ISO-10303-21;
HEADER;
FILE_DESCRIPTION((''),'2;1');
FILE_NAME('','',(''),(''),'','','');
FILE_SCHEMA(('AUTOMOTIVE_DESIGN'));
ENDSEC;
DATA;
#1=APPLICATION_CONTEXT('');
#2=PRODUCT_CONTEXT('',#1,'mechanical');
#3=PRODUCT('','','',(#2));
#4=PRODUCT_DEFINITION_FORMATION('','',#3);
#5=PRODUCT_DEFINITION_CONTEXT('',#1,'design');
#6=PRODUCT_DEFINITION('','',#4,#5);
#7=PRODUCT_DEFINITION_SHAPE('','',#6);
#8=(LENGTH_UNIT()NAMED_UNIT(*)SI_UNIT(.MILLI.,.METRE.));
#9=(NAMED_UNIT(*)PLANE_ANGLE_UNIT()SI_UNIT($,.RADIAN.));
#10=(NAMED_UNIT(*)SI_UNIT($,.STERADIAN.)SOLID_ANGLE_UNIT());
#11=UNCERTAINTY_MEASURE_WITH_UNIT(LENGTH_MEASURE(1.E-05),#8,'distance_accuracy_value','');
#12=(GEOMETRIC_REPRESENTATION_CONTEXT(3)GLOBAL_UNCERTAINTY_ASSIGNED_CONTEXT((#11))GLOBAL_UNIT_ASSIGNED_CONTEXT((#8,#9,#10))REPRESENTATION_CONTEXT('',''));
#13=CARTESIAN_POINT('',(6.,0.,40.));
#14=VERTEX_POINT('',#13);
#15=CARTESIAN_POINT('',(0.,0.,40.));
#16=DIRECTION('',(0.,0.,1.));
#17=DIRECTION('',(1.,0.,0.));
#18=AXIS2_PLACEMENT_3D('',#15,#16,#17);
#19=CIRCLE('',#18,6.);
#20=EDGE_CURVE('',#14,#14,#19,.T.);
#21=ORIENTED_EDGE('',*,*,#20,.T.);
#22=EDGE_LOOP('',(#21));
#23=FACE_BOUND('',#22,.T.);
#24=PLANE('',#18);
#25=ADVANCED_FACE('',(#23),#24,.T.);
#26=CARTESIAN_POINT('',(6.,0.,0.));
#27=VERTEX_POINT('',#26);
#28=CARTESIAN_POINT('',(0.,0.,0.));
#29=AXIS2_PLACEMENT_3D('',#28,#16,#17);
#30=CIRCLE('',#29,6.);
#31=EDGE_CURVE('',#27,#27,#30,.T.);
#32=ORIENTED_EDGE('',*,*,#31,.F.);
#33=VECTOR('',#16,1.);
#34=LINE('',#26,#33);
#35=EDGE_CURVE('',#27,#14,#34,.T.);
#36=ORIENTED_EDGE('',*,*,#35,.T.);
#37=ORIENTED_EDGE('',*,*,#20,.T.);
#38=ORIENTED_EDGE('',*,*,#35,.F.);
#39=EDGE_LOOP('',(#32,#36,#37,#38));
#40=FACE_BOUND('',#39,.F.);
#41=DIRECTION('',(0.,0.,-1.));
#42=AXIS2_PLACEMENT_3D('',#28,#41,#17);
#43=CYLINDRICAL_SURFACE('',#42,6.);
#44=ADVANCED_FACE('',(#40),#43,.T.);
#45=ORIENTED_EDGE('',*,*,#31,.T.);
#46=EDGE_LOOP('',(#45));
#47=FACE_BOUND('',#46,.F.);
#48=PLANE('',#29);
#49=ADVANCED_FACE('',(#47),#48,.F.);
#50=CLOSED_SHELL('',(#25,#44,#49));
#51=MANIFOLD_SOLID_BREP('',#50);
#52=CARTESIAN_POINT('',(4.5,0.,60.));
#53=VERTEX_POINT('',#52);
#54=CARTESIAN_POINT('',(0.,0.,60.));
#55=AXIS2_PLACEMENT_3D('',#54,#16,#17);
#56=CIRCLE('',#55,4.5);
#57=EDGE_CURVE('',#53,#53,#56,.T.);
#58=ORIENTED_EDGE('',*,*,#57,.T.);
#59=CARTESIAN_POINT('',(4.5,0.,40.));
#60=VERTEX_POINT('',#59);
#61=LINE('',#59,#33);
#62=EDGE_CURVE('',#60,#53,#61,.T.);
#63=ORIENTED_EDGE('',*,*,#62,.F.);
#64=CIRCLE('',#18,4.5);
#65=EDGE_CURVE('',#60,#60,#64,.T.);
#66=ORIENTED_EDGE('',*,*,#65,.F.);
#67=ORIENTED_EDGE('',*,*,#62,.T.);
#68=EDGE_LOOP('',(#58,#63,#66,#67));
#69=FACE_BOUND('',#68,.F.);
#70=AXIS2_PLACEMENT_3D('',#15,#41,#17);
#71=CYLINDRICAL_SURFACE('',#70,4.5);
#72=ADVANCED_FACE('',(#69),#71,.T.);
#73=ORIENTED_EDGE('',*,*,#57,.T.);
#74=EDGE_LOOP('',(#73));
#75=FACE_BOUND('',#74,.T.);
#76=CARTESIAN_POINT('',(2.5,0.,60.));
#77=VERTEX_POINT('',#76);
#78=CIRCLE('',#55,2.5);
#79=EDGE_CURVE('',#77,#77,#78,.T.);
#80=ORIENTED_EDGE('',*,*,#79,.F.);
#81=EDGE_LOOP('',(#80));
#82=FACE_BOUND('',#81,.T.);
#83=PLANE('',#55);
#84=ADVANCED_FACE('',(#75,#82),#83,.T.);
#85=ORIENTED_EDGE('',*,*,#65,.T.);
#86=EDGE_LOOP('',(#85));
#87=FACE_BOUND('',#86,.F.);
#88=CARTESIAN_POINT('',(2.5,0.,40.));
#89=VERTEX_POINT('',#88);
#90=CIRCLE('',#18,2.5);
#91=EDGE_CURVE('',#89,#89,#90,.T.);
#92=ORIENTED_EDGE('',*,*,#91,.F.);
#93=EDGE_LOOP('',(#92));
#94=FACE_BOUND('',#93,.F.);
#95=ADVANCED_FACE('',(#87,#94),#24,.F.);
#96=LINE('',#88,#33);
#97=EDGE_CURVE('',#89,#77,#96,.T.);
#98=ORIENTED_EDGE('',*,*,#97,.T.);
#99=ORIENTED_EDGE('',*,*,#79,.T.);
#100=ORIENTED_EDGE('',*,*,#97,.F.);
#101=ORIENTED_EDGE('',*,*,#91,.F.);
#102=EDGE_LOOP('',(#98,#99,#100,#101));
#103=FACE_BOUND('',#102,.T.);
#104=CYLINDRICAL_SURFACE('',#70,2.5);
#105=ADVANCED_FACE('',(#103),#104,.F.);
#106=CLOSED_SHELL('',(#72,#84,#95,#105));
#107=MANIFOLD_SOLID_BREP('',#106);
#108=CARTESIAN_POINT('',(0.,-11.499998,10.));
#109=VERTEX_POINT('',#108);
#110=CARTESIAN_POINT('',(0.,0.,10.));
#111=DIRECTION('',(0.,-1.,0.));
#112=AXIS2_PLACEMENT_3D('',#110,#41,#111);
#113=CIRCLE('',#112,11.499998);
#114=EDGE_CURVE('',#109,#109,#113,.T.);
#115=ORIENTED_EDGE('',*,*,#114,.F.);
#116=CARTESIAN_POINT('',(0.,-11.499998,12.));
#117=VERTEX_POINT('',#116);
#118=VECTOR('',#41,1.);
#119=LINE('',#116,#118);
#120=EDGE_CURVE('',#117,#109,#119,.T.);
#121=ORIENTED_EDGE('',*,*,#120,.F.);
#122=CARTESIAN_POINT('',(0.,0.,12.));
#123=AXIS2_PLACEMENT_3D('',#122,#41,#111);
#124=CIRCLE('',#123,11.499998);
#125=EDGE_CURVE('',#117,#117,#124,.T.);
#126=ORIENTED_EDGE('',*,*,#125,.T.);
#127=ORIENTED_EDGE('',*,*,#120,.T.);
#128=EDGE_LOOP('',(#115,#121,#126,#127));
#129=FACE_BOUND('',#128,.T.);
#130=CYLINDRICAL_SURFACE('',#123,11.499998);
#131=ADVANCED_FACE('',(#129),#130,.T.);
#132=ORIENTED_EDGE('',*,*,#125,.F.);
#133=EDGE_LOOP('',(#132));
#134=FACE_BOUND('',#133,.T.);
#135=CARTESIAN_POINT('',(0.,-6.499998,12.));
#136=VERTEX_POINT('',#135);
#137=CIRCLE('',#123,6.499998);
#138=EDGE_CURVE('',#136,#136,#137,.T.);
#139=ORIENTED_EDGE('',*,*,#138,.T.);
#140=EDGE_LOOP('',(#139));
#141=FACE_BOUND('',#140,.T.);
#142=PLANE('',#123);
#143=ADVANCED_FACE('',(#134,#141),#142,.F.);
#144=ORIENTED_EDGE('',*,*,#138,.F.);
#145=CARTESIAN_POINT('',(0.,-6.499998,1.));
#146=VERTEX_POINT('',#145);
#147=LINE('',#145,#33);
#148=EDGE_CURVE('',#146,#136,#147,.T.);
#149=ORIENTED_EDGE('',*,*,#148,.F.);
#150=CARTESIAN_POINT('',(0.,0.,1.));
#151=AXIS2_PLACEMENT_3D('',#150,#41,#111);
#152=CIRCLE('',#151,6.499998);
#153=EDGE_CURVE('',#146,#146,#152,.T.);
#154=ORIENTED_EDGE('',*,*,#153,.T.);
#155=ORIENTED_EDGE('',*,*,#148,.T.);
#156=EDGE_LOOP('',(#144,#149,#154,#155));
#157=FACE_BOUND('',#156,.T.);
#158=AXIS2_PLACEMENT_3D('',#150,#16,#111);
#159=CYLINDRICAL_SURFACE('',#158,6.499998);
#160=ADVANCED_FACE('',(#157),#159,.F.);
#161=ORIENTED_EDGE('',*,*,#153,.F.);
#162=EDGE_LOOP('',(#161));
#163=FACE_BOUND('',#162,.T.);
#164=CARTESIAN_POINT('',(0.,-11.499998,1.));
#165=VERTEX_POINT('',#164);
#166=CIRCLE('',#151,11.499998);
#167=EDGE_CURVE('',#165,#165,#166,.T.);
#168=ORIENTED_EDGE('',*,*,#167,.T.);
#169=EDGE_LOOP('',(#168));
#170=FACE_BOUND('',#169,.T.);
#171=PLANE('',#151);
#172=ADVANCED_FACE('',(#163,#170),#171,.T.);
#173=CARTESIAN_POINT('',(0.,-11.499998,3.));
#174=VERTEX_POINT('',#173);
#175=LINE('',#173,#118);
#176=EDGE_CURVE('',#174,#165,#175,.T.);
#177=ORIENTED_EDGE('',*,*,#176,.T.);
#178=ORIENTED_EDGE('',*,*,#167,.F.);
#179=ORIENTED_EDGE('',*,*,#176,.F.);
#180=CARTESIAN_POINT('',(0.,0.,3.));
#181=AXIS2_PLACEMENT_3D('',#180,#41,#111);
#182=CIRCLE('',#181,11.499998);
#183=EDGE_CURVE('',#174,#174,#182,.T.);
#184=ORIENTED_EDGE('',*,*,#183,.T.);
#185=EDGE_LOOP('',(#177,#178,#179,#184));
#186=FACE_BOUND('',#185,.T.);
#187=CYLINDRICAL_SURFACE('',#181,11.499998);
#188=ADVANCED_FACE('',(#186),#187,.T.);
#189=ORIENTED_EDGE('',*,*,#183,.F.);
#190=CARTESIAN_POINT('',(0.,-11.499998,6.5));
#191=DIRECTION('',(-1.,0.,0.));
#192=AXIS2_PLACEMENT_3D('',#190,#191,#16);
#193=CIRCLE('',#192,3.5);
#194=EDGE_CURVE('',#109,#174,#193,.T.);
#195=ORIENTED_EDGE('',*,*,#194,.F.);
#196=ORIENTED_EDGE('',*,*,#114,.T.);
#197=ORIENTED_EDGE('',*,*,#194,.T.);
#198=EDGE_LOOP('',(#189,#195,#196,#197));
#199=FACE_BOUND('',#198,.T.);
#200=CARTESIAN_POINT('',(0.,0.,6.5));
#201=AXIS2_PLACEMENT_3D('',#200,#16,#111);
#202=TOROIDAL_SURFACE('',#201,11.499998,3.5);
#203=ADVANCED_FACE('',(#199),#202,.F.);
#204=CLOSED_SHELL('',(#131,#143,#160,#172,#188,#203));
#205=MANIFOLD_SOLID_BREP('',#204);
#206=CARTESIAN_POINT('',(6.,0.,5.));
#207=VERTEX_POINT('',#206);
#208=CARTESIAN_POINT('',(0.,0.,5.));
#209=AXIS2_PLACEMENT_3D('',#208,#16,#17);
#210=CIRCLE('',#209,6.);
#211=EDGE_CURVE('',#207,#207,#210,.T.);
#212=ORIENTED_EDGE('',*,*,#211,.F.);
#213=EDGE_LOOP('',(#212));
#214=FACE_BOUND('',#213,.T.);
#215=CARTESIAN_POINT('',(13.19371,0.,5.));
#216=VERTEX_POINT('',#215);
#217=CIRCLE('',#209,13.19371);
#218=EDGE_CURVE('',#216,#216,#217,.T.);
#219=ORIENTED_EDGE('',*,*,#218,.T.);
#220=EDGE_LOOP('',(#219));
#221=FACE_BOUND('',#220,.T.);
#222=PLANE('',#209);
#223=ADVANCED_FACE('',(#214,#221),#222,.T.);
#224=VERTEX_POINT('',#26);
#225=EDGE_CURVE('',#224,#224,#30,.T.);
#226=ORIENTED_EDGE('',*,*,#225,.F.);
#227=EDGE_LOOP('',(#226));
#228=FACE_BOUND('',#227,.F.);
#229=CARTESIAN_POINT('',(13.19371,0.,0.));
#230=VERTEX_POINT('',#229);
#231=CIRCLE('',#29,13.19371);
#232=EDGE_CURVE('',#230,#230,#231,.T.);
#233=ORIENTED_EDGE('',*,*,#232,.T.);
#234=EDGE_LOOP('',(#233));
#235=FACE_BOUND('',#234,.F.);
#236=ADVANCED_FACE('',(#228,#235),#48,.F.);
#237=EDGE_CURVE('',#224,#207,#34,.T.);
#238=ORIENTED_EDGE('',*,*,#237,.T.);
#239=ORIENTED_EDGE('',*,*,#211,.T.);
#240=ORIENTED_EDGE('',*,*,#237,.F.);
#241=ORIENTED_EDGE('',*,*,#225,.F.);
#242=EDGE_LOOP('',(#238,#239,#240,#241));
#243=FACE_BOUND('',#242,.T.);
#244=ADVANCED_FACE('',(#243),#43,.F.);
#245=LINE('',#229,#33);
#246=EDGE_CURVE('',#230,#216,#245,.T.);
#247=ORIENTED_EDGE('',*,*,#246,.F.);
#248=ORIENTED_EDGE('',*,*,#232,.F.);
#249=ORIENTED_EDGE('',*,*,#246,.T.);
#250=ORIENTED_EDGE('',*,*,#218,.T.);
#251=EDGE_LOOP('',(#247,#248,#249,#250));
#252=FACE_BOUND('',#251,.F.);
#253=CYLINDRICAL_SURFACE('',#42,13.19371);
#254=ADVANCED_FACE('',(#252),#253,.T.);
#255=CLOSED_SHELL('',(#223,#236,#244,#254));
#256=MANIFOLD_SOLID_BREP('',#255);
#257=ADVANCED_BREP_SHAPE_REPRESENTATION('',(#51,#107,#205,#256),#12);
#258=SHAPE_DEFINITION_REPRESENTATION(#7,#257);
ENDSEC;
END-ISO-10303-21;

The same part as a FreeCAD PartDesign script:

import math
import FreeCAD as App
import Part
import Sketcher
Q = App.Units.Quantity

doc = App.newDocument("Part")
params = doc.addObject("Spreadsheet::Sheet", "Params")
for row, (alias, value) in enumerate([
    ("sketch1_diameter", "12 mm"),
    ("pad1_length", "40 mm"),
    ("sketch2_diameter", "9 mm"),
    ("sketch2_diameter2", "5 mm"),
    ("pad2_length", "20 mm"),
    ("sketch3_radius", "3.5 mm"),
    ("sketch3_width", "5 mm"),
    ("sketch3_height", "11 mm"),
    ("revolution_angle", "360 deg"),
    ("sketch4_diameter", "12 mm"),
    ("pad3_length", "5 mm"),
], start=1):
    params.set(f"A{row}", alias)
    params.set(f"B{row}", "=" + value)
    params.setAlias(f"B{row}", alias)

body = doc.addObject("PartDesign::Body", "Body")

sketch1 = body.newObject("Sketcher::SketchObject", "Sketch")
sketch1.AttachmentSupport = (doc.getObject("XY_Plane"), [""])
sketch1.MapMode = "FlatFace"
sketch1.addGeometry(Part.Circle(App.Vector(0, 0, 0), App.Vector(0, 0, 1), 6), False)
sketch1.addConstraint([
    Sketcher.Constraint("Coincident", 0, 3, -1, 1),
    Sketcher.Constraint("Diameter", 0, Q("12 mm")),
])
sketch1.setExpression("Constraints[1]", "Params.sketch1_diameter")
pad1 = body.newObject("PartDesign::Pad", "Pad")
pad1.Profile = sketch1
pad1.setExpression("Length", "Params.pad1_length")
body2 = doc.addObject("PartDesign::Body", "Body001")

sketch2 = body2.newObject("Sketcher::SketchObject", "Sketch001")
sketch2.AttachmentSupport = (doc.getObject("XY_Plane001"), [""])
sketch2.MapMode = "FlatFace"
sketch2.AttachmentOffset = App.Placement(App.Vector(0, 0, 40), App.Rotation())
sketch2.addGeometry([
    Part.Circle(App.Vector(0, 0, 0), App.Vector(0, 0, 1), 4.5),
    Part.Circle(App.Vector(0, 0, 0), App.Vector(0, 0, 1), 2.5),
], False)
sketch2.addConstraint([
    Sketcher.Constraint("Coincident", 0, 3, -1, 1),
    Sketcher.Constraint("Coincident", 1, 3, -1, 1),
    Sketcher.Constraint("Diameter", 0, Q("9 mm")),
    Sketcher.Constraint("Diameter", 1, Q("5 mm")),
])
sketch2.setExpression("Constraints[2]", "Params.sketch2_diameter")
sketch2.setExpression("Constraints[3]", "Params.sketch2_diameter2")
pad2 = body2.newObject("PartDesign::Pad", "Pad001")
pad2.Profile = sketch2
pad2.setExpression("Length", "Params.pad2_length")
body3 = doc.addObject("PartDesign::Body", "Body002")

sketch3 = body3.newObject("Sketcher::SketchObject", "Sketch002")
sketch3.AttachmentSupport = (doc.getObject("YZ_Plane002"), [""])
sketch3.MapMode = "FlatFace"
sketch3.addGeometry([
    Part.LineSegment(App.Vector(-11.5, 1, 0), App.Vector(-6.5, 1, 0)),
    Part.LineSegment(App.Vector(-6.5, 1, 0), App.Vector(-6.5, 12, 0)),
    Part.LineSegment(App.Vector(-6.5, 12, 0), App.Vector(-11.5, 12, 0)),
    Part.LineSegment(App.Vector(-11.5, 12, 0), App.Vector(-11.5, 10, 0)),
    Part.ArcOfCircle(Part.Circle(App.Vector(-11.5, 6.5, 0), App.Vector(0, 0, 1), 3.5), math.radians(-90), math.radians(90)),
    Part.LineSegment(App.Vector(-11.5, 3, 0), App.Vector(-11.5, 1, 0)),
], False)
sketch3.addConstraint([
    Sketcher.Constraint("Coincident", 0, 2, 1, 1),
    Sketcher.Constraint("Coincident", 1, 2, 2, 1),
    Sketcher.Constraint("Coincident", 2, 2, 3, 1),
    Sketcher.Constraint("Coincident", 3, 2, 4, 2),
    Sketcher.Constraint("Coincident", 4, 1, 5, 1),
    Sketcher.Constraint("Coincident", 5, 2, 0, 1),
    Sketcher.Constraint("Horizontal", 0),
    Sketcher.Constraint("Vertical", 1),
    Sketcher.Constraint("Horizontal", 2),
    Sketcher.Constraint("Vertical", 3),
    Sketcher.Constraint("Vertical", 5),
    Sketcher.Constraint("Vertical", 4, 3, 2, 2),
    Sketcher.Constraint("Vertical", 3, 2, 4, 1),
    Sketcher.Constraint("Equal", 3, 5),
    Sketcher.Constraint("Radius", 4, Q("3.5 mm")),
    Sketcher.Constraint("DistanceX", 0, 1, 0, 2, Q("5 mm")),
    Sketcher.Constraint("DistanceY", 1, 1, 1, 2, Q("11 mm")),
    Sketcher.Constraint("DistanceY", -1, 1, 0, 2, Q("1 mm")),
    Sketcher.Constraint("DistanceX", 4, 3, -1, 1, Q("11.499998 mm")),
])
sketch3.setExpression("Constraints[14]", "Params.sketch3_radius")
sketch3.setExpression("Constraints[15]", "Params.sketch3_width")
sketch3.setExpression("Constraints[16]", "Params.sketch3_height")
revolution = body3.newObject("PartDesign::Revolution", "Revolution")
revolution.Profile = sketch3
revolution.ReferenceAxis = (sketch3, ["V_Axis"])
revolution.setExpression("Angle", "Params.revolution_angle")
body4 = doc.addObject("PartDesign::Body", "Body003")

sketch4 = body4.newObject("Sketcher::SketchObject", "Sketch003")
sketch4.AttachmentSupport = (doc.getObject("XY_Plane003"), [""])
sketch4.MapMode = "FlatFace"
sketch4.addGeometry([
    Part.Circle(App.Vector(0, 0, 0), App.Vector(0, 0, 1), 13),
    Part.Circle(App.Vector(0, 0, 0), App.Vector(0, 0, 1), 6),
], False)
sketch4.addConstraint([
    Sketcher.Constraint("Coincident", 0, 3, -1, 1),
    Sketcher.Constraint("Coincident", 1, 3, -1, 1),
    Sketcher.Constraint("Diameter", 1, Q("12 mm")),
    Sketcher.Constraint("Diameter", 0, Q("26.387421 mm")),
])
sketch4.setExpression("Constraints[2]", "Params.sketch4_diameter")
pad3 = body4.newObject("PartDesign::Pad", "Pad002")
pad3.Profile = sketch4
pad3.setExpression("Length", "Params.pad3_length")

doc.recompute()
